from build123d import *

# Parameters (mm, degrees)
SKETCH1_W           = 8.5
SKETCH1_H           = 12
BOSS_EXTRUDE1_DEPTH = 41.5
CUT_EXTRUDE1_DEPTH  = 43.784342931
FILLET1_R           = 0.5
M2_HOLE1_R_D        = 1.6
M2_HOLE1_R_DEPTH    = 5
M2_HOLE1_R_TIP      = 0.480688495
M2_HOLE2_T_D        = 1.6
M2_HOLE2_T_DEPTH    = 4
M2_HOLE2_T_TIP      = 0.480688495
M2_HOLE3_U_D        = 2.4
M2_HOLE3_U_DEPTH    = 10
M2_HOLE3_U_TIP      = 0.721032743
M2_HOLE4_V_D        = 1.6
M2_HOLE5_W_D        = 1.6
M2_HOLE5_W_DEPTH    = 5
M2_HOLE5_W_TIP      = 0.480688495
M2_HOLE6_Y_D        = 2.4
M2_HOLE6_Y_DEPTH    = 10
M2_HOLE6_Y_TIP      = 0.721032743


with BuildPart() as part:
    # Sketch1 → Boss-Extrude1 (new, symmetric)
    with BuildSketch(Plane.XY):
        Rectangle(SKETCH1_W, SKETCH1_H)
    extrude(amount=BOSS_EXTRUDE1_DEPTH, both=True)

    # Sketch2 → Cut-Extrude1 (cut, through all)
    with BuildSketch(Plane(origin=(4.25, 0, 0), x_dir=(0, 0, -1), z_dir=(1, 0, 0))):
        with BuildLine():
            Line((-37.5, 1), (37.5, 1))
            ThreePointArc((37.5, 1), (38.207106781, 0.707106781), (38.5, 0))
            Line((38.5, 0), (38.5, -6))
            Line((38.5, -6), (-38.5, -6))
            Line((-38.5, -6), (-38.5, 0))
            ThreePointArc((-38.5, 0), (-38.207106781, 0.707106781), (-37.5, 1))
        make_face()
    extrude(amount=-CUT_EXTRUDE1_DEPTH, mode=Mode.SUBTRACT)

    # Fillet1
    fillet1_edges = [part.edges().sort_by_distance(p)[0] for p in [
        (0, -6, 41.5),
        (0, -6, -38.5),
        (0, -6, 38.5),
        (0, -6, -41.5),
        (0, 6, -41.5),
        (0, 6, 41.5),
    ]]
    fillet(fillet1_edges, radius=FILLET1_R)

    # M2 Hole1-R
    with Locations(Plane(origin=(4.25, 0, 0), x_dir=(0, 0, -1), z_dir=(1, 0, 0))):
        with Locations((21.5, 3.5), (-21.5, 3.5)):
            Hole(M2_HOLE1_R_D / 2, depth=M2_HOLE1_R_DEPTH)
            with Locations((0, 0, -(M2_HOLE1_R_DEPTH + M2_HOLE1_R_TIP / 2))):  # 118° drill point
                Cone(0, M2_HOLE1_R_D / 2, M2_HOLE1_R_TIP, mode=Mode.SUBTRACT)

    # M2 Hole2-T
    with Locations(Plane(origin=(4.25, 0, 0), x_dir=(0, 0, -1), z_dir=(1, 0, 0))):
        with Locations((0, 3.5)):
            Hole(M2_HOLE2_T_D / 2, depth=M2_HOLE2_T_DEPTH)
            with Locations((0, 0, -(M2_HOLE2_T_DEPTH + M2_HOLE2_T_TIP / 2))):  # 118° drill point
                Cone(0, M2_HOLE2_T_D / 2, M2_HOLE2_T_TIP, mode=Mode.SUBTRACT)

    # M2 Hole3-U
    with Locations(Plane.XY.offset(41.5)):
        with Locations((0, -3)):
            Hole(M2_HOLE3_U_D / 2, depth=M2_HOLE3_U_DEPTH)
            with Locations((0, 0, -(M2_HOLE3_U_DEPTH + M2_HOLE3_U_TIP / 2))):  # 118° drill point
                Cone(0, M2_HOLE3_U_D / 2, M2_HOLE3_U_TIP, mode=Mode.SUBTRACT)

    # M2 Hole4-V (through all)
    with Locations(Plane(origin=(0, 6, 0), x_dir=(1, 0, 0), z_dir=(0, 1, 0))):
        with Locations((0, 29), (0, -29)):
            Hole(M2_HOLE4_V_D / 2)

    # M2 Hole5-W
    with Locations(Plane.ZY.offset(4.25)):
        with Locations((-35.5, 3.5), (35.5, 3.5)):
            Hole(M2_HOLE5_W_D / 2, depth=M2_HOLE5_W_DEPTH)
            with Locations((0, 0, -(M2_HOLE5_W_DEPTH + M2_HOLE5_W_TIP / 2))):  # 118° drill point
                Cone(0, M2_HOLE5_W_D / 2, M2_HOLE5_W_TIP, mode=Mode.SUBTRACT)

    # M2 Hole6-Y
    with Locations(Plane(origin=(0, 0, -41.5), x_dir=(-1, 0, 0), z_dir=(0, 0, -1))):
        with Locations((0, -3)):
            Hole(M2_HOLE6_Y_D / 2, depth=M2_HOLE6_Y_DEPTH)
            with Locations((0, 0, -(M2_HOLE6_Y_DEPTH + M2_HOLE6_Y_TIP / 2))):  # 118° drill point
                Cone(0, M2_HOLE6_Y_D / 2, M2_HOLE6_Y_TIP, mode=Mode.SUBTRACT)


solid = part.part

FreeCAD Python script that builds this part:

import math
import FreeCAD as App
import Part
import Sketcher
from FreeCAD import Vector
Q = App.Units.Quantity


def edges_at(feature, points):
    """Names of the edges that pass closest to the given points."""
    edges = feature.Shape.Edges
    near = lambda p: min(range(len(edges)), key=lambda i: edges[i].distToShape(Part.Vertex(*p))[0])
    return sorted({f"Edge{near(p) + 1}" for p in points})


def add_polygon(sketch, points):
    """Adds a closed chain of lines whose ends are joined by coincident constraints."""
    first, n = sketch.GeometryCount, len(points)
    for a, b in zip(points, points[1:] + points[:1]):
        sketch.addGeometry(Part.LineSegment(App.Vector(*a, 0), App.Vector(*b, 0)), False)
    for i in range(n):
        sketch.addConstraint(Sketcher.Constraint("Coincident", first + i, 2, first + (i + 1) % n, 1))

doc = App.newDocument("Part")
params = doc.addObject("Spreadsheet::Sheet", "Params")
for row, (alias, value) in enumerate([
    ("sketch1_height", "12 mm"),
    ("sketch1_width", "8.5 mm"),
    ("pad1_length", "83 mm"),
    ("sketch2_radius", "1 mm"),
    ("sketch2_width", "6 mm"),
    ("sketch2_height", "75 mm"),
    ("fillet_radius", "0.5 mm"),
    ("sketch3_diameter", "1.6 mm"),
    ("hole_diameter", "1.6 mm"),
    ("hole_depth", "5 mm"),
    ("sketch4_diameter", "1.6 mm"),
    ("hole2_diameter", "1.6 mm"),
    ("hole2_depth", "4 mm"),
    ("sketch5_diameter", "2.4 mm"),
    ("hole3_diameter", "2.4 mm"),
    ("hole3_depth", "10 mm"),
    ("sketch6_diameter", "1.6 mm"),
    ("hole4_diameter", "1.6 mm"),
    ("sketch7_diameter", "1.6 mm"),
    ("hole5_diameter", "1.6 mm"),
    ("hole5_depth", "5 mm"),
    ("sketch8_diameter", "2.4 mm"),
    ("hole6_diameter", "2.4 mm"),
    ("hole6_depth", "10 mm"),
], start=1):
    params.set(f"A{row}", alias)
    params.set(f"B{row}", "=" + value)
    params.setAlias(f"B{row}", alias)

body = doc.addObject("PartDesign::Body", "Body")

sketch1 = doc.addObject("Sketcher::SketchObject", "Sketch")
body.addObject(sketch1)
sketch1.AttachmentSupport = (doc.XY_Plane, [""])
sketch1.MapMode = "FlatFace"
add_polygon(sketch1, [(-4, 6), (-4, -6), (4, -6), (4, 6)])
sketch1.addConstraint([
    Sketcher.Constraint("Vertical", 0),
    Sketcher.Constraint("Horizontal", 1),
    Sketcher.Constraint("Vertical", 2),
    Sketcher.Constraint("Horizontal", 3),
    Sketcher.Constraint("Symmetric", 0, 2, 2, 2, -1, 1),
    Sketcher.Constraint("DistanceY", 0, 2, 0, 1, Q("12 mm")),
    Sketcher.Constraint("DistanceX", 1, 1, 1, 2, Q("8.5 mm")),
])
sketch1.setExpression("Constraints[9]", "Params.sketch1_height")
sketch1.setExpression("Constraints[10]", "Params.sketch1_width")
pad1 = doc.addObject("PartDesign::Pad", "Pad")
body.addObject(pad1)
pad1.Profile = sketch1
pad1.setExpression("Length", "Params.pad1_length")
pad1.Midplane = True

sketch2 = doc.addObject("Sketcher::SketchObject", "Sketch001")
body.addObject(sketch2)
sketch2.AttachmentSupport = (doc.YZ_Plane, [""])
sketch2.MapMode = "FlatFace"
sketch2.AttachmentOffset = App.Placement(Vector(0, 0, 4.25), App.Rotation())
sketch2.addGeometry([
    Part.LineSegment(Vector(1, -37.5, 0), Vector(1, 37.5, 0)),
    Part.ArcOfCircle(Part.Circle(Vector(0, 37.5, 0), Vector(0, 0, 1), 1), math.radians(0), math.radians(90)),
    Part.LineSegment(Vector(0, 38.5, 0), Vector(-6, 38.5, 0)),
    Part.LineSegment(Vector(-6, 38.5, 0), Vector(-6, -38.5, 0)),
    Part.LineSegment(Vector(-6, -38.5, 0), Vector(0, -38.5, 0)),
    Part.ArcOfCircle(Part.Circle(Vector(0, -37.5, 0), Vector(0, 0, 1), 1), math.radians(-90), math.radians(0)),
], False)
sketch2.addConstraint([
    Sketcher.Constraint("Tangent", 0, 2, 1, 1),
    Sketcher.Constraint("Tangent", 1, 2, 2, 1),
    Sketcher.Constraint("Coincident", 2, 2, 3, 1),
    Sketcher.Constraint("Coincident", 3, 2, 4, 1),
    Sketcher.Constraint("Tangent", 4, 2, 5, 1),
    Sketcher.Constraint("Tangent", 5, 2, 0, 1),
    Sketcher.Constraint("Vertical", 0),
    Sketcher.Constraint("Horizontal", 2),
    Sketcher.Constraint("Vertical", 3),
    Sketcher.Constraint("Horizontal", 4),
    Sketcher.Constraint("Equal", 1, 5),
    Sketcher.Constraint("Symmetric", 1, 3, 5, 3, -1, 1),
    Sketcher.Constraint("Radius", 1, Q("1 mm")),
    Sketcher.Constraint("DistanceX", 2, 2, 2, 1, Q("6 mm")),
    Sketcher.Constraint("DistanceY", 0, 1, 0, 2, Q("75 mm")),
])
sketch2.setExpression("Constraints[12]", "Params.sketch2_radius")
sketch2.setExpression("Constraints[13]", "Params.sketch2_width")
sketch2.setExpression("Constraints[14]", "Params.sketch2_height")
pocket1 = doc.addObject("PartDesign::Pocket", "Pocket")
body.addObject(pocket1)
pocket1.Profile = sketch2
pocket1.Type = "ThroughAll"
doc.recompute()

fillet = doc.addObject("PartDesign::Fillet", "Fillet")
body.addObject(fillet)
fillet.Base = (pocket1, edges_at(pocket1, [
    (0, -6, 41.5),
    (0, -6, -38.5),
    (0, -6, 38.5),
    (0, -6, -41.5),
    (0, 6, -41.5),
    (0, 6, 41.5),
]))
fillet.setExpression("Radius", "Params.fillet_radius")

sketch3 = doc.addObject("Sketcher::SketchObject", "Sketch002")
body.addObject(sketch3)
sketch3.AttachmentSupport = (doc.YZ_Plane, [""])
sketch3.MapMode = "FlatFace"
sketch3.AttachmentOffset = App.Placement(Vector(0, 0, 4.25), App.Rotation())
sketch3.addGeometry([
    Part.Circle(Vector(3.5, -21.5, 0), Vector(0, 0, 1), 0.8),
    Part.Circle(Vector(3.5, 21.5, 0), Vector(0, 0, 1), 0.8),
], False)
sketch3.addConstraint([
    Sketcher.Constraint("Equal", 0, 1),
    Sketcher.Constraint("Symmetric", 0, 3, 1, 3, -1),
    Sketcher.Constraint("Diameter", 0, Q("1.6 mm")),
    Sketcher.Constraint("DistanceY", 0, 3, 1, 3, Q("43 mm")),
    Sketcher.Constraint("DistanceX", -1, 1, 0, 3, Q("3.5 mm")),
])
sketch3.setExpression("Constraints[2]", "Params.sketch3_diameter")
doc.recompute()
hole = doc.addObject("PartDesign::Hole", "Hole")
body.addObject(hole)
hole.Profile = sketch3
hole.ThreadType = "None"
hole.setExpression("Diameter", "Params.hole_diameter")
hole.DepthType = "Dimension"
hole.setExpression("Depth", "Params.hole_depth")
hole.DrillPoint = "Angled"
hole.DrillPointAngle = 118

sketch4 = doc.addObject("Sketcher::SketchObject", "Sketch003")
body.addObject(sketch4)
sketch4.AttachmentSupport = (doc.YZ_Plane, [""])
sketch4.MapMode = "FlatFace"
sketch4.AttachmentOffset = App.Placement(Vector(0, 0, 4.25), App.Rotation())
sketch4.addGeometry(Part.Circle(Vector(3.5, 0, 0), Vector(0, 0, 1), 0.8), False)
sketch4.addConstraint([
    Sketcher.Constraint("PointOnObject", 0, 3, -1),
    Sketcher.Constraint("Diameter", 0, Q("1.6 mm")),
    Sketcher.Constraint("DistanceX", -1, 1, 0, 3, Q("3.5 mm")),
])
sketch4.setExpression("Constraints[1]", "Params.sketch4_diameter")
doc.recompute()
hole2 = doc.addObject("PartDesign::Hole", "Hole001")
body.addObject(hole2)
hole2.Profile = sketch4
hole2.ThreadType = "None"
hole2.setExpression("Diameter", "Params.hole2_diameter")
hole2.DepthType = "Dimension"
hole2.setExpression("Depth", "Params.hole2_depth")
hole2.DrillPoint = "Angled"
hole2.DrillPointAngle = 118

sketch5 = doc.addObject("Sketcher::SketchObject", "Sketch004")
body.addObject(sketch5)
sketch5.AttachmentSupport = (doc.XY_Plane, [""])
sketch5.MapMode = "FlatFace"
sketch5.AttachmentOffset = App.Placement(Vector(0, 0, 41.5), App.Rotation())
sketch5.addGeometry(Part.Circle(Vector(0, -3, 0), Vector(0, 0, 1), 1.2), False)
sketch5.addConstraint([
    Sketcher.Constraint("PointOnObject", 0, 3, -2),
    Sketcher.Constraint("Diameter", 0, Q("2.4 mm")),
    Sketcher.Constraint("DistanceY", 0, 3, -1, 1, Q("3 mm")),
])
sketch5.setExpression("Constraints[1]", "Params.sketch5_diameter")
doc.recompute()
hole3 = doc.addObject("PartDesign::Hole", "Hole002")
body.addObject(hole3)
hole3.Profile = sketch5
hole3.ThreadType = "None"
hole3.setExpression("Diameter", "Params.hole3_diameter")
hole3.DepthType = "Dimension"
hole3.setExpression("Depth", "Params.hole3_depth")
hole3.DrillPoint = "Angled"
hole3.DrillPointAngle = 118

sketch6 = doc.addObject("Sketcher::SketchObject", "Sketch005")
body.addObject(sketch6)
sketch6.AttachmentSupport = (doc.XZ_Plane, [""])
sketch6.MapMode = "FlatFace"
sketch6.AttachmentOffset = App.Placement(Vector(0, 0, -6), App.Rotation())
sketch6.addGeometry([
    Part.Circle(Vector(0, -29, 0), Vector(0, 0, 1), 0.8),
    Part.Circle(Vector(0, 29, 0), Vector(0, 0, 1), 0.8),
], False)
sketch6.addConstraint([
    Sketcher.Constraint("Equal", 0, 1),
    Sketcher.Constraint("Symmetric", 0, 3, 1, 3, -1, 1),
    Sketcher.Constraint("PointOnObject", 0, 3, -2),
    Sketcher.Constraint("Diameter", 0, Q("1.6 mm")),
    Sketcher.Constraint("DistanceY", 0, 3, -1, 1, Q("29 mm")),
])
sketch6.setExpression("Constraints[3]", "Params.sketch6_diameter")
doc.recompute()
hole4 = doc.addObject("PartDesign::Hole", "Hole003")
body.addObject(hole4)
hole4.Profile = sketch6
hole4.ThreadType = "None"
hole4.setExpression("Diameter", "Params.hole4_diameter")
hole4.DepthType = "ThroughAll"
hole4.Reversed = True

sketch7 = doc.addObject("Sketcher::SketchObject", "Sketch006")
body.addObject(sketch7)
sketch7.AttachmentSupport = (doc.YZ_Plane, [""])
sketch7.MapMode = "FlatFace"
sketch7.AttachmentOffset = App.Placement(Vector(0, 0, -4.25), App.Rotation())
sketch7.addGeometry([
    Part.Circle(Vector(3.5, -35.5, 0), Vector(0, 0, 1), 0.8),
    Part.Circle(Vector(3.5, 35.5, 0), Vector(0, 0, 1), 0.8),
], False)
sketch7.addConstraint([
    Sketcher.Constraint("Equal", 0, 1),
    Sketcher.Constraint("Symmetric", 0, 3, 1, 3, -1),
    Sketcher.Constraint("Diameter", 0, Q("1.6 mm")),
    Sketcher.Constraint("DistanceY", 0, 3, 1, 3, Q("71 mm")),
    Sketcher.Constraint("DistanceX", -1, 1, 0, 3, Q("3.5 mm")),
])
sketch7.setExpression("Constraints[2]", "Params.sketch7_diameter")
doc.recompute()
hole5 = doc.addObject("PartDesign::Hole", "Hole004")
body.addObject(hole5)
hole5.Profile = sketch7
hole5.ThreadType = "None"
hole5.setExpression("Diameter", "Params.hole5_diameter")
hole5.DepthType = "Dimension"
hole5.setExpression("Depth", "Params.hole5_depth")
hole5.DrillPoint = "Angled"
hole5.DrillPointAngle = 118
hole5.Reversed = True

sketch8 = doc.addObject("Sketcher::SketchObject", "Sketch007")
body.addObject(sketch8)
sketch8.AttachmentSupport = (doc.XY_Plane, [""])
sketch8.MapMode = "FlatFace"
sketch8.AttachmentOffset = App.Placement(Vector(0, 0, -41.5), App.Rotation())
sketch8.addGeometry(Part.Circle(Vector(0, -3, 0), Vector(0, 0, 1), 1.2), False)
sketch8.addConstraint([
    Sketcher.Constraint("PointOnObject", 0, 3, -2),
    Sketcher.Constraint("Diameter", 0, Q("2.4 mm")),
    Sketcher.Constraint("DistanceY", 0, 3, -1, 1, Q("3 mm")),
])
sketch8.setExpression("Constraints[1]", "Params.sketch8_diameter")
doc.recompute()
hole6 = doc.addObject("PartDesign::Hole", "Hole005")
body.addObject(hole6)
hole6.Profile = sketch8
hole6.ThreadType = "None"
hole6.setExpression("Diameter", "Params.hole6_diameter")
hole6.DepthType = "Dimension"
hole6.setExpression("Depth", "Params.hole6_depth")
hole6.DrillPoint = "Angled"
hole6.DrillPointAngle = 118
hole6.Reversed = True

doc.recompute()
